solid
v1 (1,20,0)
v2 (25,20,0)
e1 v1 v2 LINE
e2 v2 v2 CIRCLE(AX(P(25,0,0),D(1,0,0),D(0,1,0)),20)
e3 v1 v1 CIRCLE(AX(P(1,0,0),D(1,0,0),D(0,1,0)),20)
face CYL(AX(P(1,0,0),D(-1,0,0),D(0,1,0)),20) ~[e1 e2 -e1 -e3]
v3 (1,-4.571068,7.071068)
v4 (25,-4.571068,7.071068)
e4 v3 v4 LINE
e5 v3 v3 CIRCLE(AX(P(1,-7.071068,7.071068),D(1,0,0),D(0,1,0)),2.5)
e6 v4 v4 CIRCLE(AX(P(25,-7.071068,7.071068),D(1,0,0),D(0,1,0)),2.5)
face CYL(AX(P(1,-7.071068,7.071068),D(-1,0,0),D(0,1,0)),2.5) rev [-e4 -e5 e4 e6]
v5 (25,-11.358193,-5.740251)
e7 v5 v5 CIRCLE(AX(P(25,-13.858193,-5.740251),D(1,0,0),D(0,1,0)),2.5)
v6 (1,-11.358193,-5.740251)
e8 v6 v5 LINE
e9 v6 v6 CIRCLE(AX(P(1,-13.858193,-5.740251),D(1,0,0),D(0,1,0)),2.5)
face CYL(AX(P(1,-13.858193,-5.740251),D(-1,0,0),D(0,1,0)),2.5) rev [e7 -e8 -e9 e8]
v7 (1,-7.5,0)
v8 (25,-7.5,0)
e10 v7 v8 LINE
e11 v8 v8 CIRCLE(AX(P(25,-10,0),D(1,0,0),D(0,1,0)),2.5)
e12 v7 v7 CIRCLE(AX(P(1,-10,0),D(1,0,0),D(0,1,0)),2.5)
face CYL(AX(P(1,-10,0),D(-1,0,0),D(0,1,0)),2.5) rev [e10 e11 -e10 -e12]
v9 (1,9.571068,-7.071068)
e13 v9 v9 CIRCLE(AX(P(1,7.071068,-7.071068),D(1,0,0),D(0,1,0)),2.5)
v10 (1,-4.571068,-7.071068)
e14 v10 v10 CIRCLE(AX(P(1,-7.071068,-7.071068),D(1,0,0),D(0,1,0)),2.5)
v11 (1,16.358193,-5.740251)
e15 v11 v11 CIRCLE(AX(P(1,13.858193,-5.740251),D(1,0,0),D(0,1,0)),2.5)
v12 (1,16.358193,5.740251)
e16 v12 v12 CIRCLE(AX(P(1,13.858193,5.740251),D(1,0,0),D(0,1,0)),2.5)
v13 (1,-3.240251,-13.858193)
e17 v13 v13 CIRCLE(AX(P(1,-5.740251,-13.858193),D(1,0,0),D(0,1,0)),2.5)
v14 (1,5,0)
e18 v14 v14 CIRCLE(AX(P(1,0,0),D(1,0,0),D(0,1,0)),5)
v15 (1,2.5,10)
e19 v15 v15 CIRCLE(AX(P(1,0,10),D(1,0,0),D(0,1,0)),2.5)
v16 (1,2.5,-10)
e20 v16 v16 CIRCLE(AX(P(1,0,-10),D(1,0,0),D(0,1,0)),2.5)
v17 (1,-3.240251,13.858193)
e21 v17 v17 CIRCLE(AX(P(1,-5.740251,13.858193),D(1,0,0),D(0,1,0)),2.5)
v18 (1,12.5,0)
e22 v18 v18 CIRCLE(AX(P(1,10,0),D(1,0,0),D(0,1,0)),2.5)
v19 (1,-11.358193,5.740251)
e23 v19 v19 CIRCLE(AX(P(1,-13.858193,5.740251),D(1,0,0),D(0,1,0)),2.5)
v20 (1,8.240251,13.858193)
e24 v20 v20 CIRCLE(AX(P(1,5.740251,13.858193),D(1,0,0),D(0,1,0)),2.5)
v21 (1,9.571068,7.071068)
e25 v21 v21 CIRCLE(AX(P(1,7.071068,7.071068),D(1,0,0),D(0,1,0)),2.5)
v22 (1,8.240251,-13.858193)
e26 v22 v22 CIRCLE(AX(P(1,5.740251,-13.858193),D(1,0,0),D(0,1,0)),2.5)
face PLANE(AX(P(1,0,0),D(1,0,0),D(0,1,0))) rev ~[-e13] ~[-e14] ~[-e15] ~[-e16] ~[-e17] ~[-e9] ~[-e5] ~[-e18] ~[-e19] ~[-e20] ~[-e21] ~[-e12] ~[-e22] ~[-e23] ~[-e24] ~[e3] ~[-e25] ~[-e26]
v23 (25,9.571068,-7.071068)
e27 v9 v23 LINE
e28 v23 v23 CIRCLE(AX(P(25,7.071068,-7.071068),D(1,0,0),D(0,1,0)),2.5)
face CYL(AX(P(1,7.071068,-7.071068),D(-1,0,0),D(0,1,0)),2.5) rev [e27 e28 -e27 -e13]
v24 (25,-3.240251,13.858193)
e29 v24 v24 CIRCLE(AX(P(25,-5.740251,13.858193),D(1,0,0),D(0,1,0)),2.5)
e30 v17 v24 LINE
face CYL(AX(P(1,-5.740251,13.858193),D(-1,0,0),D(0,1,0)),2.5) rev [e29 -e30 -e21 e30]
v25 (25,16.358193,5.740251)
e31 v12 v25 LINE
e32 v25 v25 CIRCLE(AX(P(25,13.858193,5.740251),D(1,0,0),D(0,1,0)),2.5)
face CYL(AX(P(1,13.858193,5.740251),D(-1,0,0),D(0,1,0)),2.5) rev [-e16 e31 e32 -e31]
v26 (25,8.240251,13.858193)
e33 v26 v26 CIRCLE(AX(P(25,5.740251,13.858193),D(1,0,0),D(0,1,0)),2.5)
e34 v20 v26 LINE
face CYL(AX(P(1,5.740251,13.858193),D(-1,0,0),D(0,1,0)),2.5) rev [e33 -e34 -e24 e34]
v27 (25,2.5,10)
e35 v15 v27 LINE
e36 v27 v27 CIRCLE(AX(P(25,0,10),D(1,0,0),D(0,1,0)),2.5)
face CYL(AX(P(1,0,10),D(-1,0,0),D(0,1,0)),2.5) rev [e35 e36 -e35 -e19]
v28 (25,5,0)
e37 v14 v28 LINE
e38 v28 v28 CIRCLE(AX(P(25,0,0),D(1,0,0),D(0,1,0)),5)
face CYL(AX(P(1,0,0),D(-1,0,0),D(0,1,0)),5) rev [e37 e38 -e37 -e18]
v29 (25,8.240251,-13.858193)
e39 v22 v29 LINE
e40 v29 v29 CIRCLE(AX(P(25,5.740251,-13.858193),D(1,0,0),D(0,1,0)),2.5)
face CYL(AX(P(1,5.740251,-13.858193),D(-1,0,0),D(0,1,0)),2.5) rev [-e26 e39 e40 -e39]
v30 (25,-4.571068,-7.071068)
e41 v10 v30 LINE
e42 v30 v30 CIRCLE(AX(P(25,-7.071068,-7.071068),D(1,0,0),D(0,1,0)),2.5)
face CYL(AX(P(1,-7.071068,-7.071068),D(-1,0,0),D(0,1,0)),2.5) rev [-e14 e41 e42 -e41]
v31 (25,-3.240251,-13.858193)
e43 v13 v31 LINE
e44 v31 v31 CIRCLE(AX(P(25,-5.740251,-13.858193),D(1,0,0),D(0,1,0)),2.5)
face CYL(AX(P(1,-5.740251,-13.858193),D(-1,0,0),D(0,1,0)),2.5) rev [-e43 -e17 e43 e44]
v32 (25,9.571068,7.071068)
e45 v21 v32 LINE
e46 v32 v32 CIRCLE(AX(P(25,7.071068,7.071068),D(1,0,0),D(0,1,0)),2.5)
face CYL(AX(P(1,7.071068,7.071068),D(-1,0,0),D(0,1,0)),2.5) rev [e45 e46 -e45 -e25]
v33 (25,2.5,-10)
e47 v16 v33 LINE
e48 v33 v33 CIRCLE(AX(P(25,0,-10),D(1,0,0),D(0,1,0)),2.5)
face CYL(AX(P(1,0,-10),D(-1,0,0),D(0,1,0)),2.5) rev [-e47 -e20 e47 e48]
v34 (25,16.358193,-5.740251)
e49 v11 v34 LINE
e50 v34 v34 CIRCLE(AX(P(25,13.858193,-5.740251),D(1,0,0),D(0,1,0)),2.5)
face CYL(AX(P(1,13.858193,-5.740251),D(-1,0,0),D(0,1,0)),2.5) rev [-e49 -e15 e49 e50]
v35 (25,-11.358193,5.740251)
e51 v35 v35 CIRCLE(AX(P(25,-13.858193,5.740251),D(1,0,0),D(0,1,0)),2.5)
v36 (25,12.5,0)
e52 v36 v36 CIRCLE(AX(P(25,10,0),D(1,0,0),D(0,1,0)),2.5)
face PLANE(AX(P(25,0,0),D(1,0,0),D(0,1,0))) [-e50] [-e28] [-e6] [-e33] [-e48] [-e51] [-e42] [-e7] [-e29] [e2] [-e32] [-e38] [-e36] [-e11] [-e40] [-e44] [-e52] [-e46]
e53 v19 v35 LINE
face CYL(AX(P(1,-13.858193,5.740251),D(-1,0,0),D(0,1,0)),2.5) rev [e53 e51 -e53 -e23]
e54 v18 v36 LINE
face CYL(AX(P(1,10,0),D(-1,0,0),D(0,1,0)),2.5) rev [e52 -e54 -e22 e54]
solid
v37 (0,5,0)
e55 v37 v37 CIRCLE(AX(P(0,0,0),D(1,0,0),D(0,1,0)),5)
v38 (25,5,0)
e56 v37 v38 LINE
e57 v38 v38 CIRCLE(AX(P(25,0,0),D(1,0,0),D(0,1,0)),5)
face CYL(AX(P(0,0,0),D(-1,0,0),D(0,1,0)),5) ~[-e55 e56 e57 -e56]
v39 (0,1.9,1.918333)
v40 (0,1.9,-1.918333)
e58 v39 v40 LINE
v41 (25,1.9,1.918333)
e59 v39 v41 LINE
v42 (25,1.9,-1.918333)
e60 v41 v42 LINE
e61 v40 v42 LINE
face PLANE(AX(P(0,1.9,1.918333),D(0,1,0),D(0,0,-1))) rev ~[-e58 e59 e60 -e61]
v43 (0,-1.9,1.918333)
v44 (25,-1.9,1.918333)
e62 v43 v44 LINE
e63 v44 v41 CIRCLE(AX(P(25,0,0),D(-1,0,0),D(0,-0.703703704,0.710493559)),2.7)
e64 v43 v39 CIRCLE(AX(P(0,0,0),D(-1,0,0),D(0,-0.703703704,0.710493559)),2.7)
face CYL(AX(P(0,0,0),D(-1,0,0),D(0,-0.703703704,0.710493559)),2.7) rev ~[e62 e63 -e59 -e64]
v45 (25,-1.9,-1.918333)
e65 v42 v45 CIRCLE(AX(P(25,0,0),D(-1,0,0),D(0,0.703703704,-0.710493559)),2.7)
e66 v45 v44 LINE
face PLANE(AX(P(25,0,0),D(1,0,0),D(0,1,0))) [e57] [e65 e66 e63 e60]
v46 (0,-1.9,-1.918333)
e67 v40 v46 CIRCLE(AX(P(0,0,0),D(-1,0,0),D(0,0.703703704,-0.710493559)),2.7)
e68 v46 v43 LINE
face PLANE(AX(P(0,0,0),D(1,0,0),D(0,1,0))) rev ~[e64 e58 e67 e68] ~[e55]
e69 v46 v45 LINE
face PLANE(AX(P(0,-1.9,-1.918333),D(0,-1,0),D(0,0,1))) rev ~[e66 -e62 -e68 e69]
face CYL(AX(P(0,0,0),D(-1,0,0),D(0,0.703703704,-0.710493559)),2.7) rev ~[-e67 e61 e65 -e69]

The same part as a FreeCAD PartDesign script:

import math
import FreeCAD as App
import Part
import Sketcher

V = App.Vector
Q = App.Units.Quantity

doc = App.newDocument("Part")
params = doc.addObject("Spreadsheet::Sheet", "Params")
for row, (alias, value) in enumerate([
    ("sketch1_diameter", "10 mm"),
    ("sketch1_radius", "2.7 mm"),
    ("pad1_length", "25 mm"),
    ("sketch2_diameter", "40 mm"),
    ("sketch2_diameter2", "5 mm"),
    ("sketch2_diameter3", "10 mm"),
    ("pad2_length", "24 mm"),
], start=1):
    params.set(f"A{row}", alias)
    params.set(f"B{row}", "=" + value)
    params.setAlias(f"B{row}", alias)

body = doc.addObject("PartDesign::Body", "Body")

# Sketch on YZ plane
sketch1 = body.newObject("Sketcher::SketchObject", "Sketch")
sketch1.AttachmentSupport = (doc.getObject("YZ_Plane"), [""])
sketch1.MapMode = "FlatFace"
sketch1.addGeometry([
    Part.Circle(V(0, 0, 0), V(0, 0, 1), 5),  # 0
    Part.LineSegment(V(1.9, 1.9, 0), V(1.9, -1.9, 0)),  # 1
    Part.ArcOfCircle(Part.Circle(V(0, 0, 0), V(0, 0, 1), 2.7), math.radians(-135), math.radians(-45)),  # 2
    Part.LineSegment(V(-1.9, -1.9, 0), V(-1.9, 1.9, 0)),  # 3
    Part.ArcOfCircle(Part.Circle(V(0, 0, 0), V(0, 0, 1), 2.7), math.radians(45), math.radians(135)),  # 4
], False)
sketch1.addConstraint([
    Sketcher.Constraint("Coincident", 1, 2, 2, 2),
    Sketcher.Constraint("Coincident", 2, 1, 3, 1),
    Sketcher.Constraint("Coincident", 3, 2, 4, 2),
    Sketcher.Constraint("Coincident", 4, 1, 1, 1),
    Sketcher.Constraint("Vertical", 1),
    Sketcher.Constraint("Vertical", 3),
    Sketcher.Constraint("Coincident", 0, 3, -1, 1),
    Sketcher.Constraint("Coincident", 2, 3, -1, 1),
    Sketcher.Constraint("Coincident", 4, 3, -1, 1),
    Sketcher.Constraint("Equal", 2, 4),
    Sketcher.Constraint("Horizontal", 1, 2, 2, 1),
    Sketcher.Constraint("Diameter", 0, Q("10 mm")),
    Sketcher.Constraint("Radius", 2, Q("2.7 mm")),
    Sketcher.Constraint("DistanceX", -1, 1, 1, 2, Q("1.9 mm")),
])
sketch1.setExpression("Constraints[11]", "Params.sketch1_diameter")
sketch1.setExpression("Constraints[12]", "Params.sketch1_radius")
pad1 = body.newObject("PartDesign::Pad", "Pad")
pad1.Profile = sketch1
pad1.setExpression("Length", "Params.pad1_length")
body2 = doc.addObject("PartDesign::Body", "Body001")

# Sketch on YZ plane
sketch2 = body2.newObject("Sketcher::SketchObject", "Sketch001")
sketch2.AttachmentSupport = (doc.getObject("YZ_Plane001"), [""])
sketch2.MapMode = "FlatFace"
sketch2.AttachmentOffset = App.Placement(V(0, 0, 1), App.Rotation())
sketch2.addGeometry([
    Part.Circle(V(0, 0, 0), V(0, 0, 1), 20),  # 0
    Part.Circle(V(-5.7, -13.9, 0), V(0, 0, 1), 2.5),  # 1
    Part.Circle(V(-13.9, -5.7, 0), V(0, 0, 1), 2.5),  # 2
    Part.Circle(V(-7.1, -7.1, 0), V(0, 0, 1), 2.5),  # 3
    Part.Circle(V(5.7, -13.9, 0), V(0, 0, 1), 2.5),  # 4
    Part.Circle(V(0, -10, 0), V(0, 0, 1), 2.5),  # 5
    Part.Circle(V(7.1, -7.1, 0), V(0, 0, 1), 2.5),  # 6
    Part.Circle(V(13.9, -5.7, 0), V(0, 0, 1), 2.5),  # 7
    Part.Circle(V(-10, 0, 0), V(0, 0, 1), 2.5),  # 8
    Part.Circle(V(-13.9, 5.7, 0), V(0, 0, 1), 2.5),  # 9
    Part.Circle(V(-7.1, 7.1, 0), V(0, 0, 1), 2.5),  # 10
    Part.Circle(V(-5.7, 13.9, 0), V(0, 0, 1), 2.5),  # 11
    Part.Circle(V(0, 0, 0), V(0, 0, 1), 5),  # 12
    Part.Circle(V(7.1, 7.1, 0), V(0, 0, 1), 2.5),  # 13
    Part.Circle(V(10, 0, 0), V(0, 0, 1), 2.5),  # 14
    Part.Circle(V(13.9, 5.7, 0), V(0, 0, 1), 2.5),  # 15
    Part.Circle(V(0, 10, 0), V(0, 0, 1), 2.5),  # 16
    Part.Circle(V(5.7, 13.9, 0), V(0, 0, 1), 2.5),  # 17
], False)
sketch2.addConstraint([
    Sketcher.Constraint("Coincident", 0, 3, -1, 1),
    Sketcher.Constraint("Coincident", 12, 3, -1, 1),
    Sketcher.Constraint("Equal", 1, 2),
    Sketcher.Constraint("Equal", 2, 3),
    Sketcher.Constraint("Equal", 3, 4),
    Sketcher.Constraint("Equal", 4, 5),
    Sketcher.Constraint("Equal", 5, 6),
    Sketcher.Constraint("Equal", 6, 7),
    Sketcher.Constraint("Equal", 7, 8),
    Sketcher.Constraint("Equal", 8, 9),
    Sketcher.Constraint("Equal", 9, 10),
    Sketcher.Constraint("Equal", 10, 11),
    Sketcher.Constraint("Equal", 11, 13),
    Sketcher.Constraint("Equal", 13, 14),
    Sketcher.Constraint("Equal", 14, 15),
    Sketcher.Constraint("Equal", 15, 16),
    Sketcher.Constraint("Equal", 16, 17),
    Sketcher.Constraint("Symmetric", 7, 3, 9, 3, -1, 1),
    Sketcher.Constraint("Symmetric", 6, 3, 10, 3, -1, 1),
    Sketcher.Constraint("Symmetric", 4, 3, 11, 3, -1, 1),
    Sketcher.Constraint("Symmetric", 3, 3, 13, 3, -1, 1),
    Sketcher.Constraint("Symmetric", 8, 3, 14, 3, -1, 1),
    Sketcher.Constraint("Symmetric", 2, 3, 15, 3, -1, 1),
    Sketcher.Constraint("Symmetric", 5, 3, 16, 3, -1, 1),
    Sketcher.Constraint("Symmetric", 1, 3, 17, 3, -1, 1),
    Sketcher.Constraint("Symmetric", 1, 3, 4, 3, -2),
    Sketcher.Constraint("Symmetric", 3, 3, 6, 3, -2),
    Sketcher.Constraint("Symmetric", 2, 3, 7, 3, -2),
    Sketcher.Constraint("PointOnObject", 5, 3, -2),
    Sketcher.Constraint("PointOnObject", 8, 3, -1),
    Sketcher.Constraint("Diameter", 0, Q("40 mm")),
    Sketcher.Constraint("Diameter", 1, Q("5 mm")),
    Sketcher.Constraint("Diameter", 12, Q("10 mm")),
    Sketcher.Constraint("DistanceY", 5, 3, -1, 1, Q("10 mm")),
    Sketcher.Constraint("DistanceX", 8, 3, -1, 1, Q("10 mm")),
    Sketcher.Constraint("DistanceX", 1, 3, -1, 1, Q("5.740251 mm")),
    Sketcher.Constraint("DistanceY", 2, 3, -1, 1, Q("5.740251 mm")),
    Sketcher.Constraint("DistanceX", 2, 3, 1, 3, Q("8.117942 mm")),
    Sketcher.Constraint("DistanceY", 1, 3, 2, 3, Q("8.117942 mm")),
    Sketcher.Constraint("DistanceX", 3, 3, 4, 3, Q("12.811319 mm")),
    Sketcher.Constraint("DistanceY", 3, 3, 9, 3, Q("12.811319 mm")),
])
sketch2.setExpression("Constraints[30]", "Params.sketch2_diameter")
sketch2.setExpression("Constraints[31]", "Params.sketch2_diameter2")
sketch2.setExpression("Constraints[32]", "Params.sketch2_diameter3")
pad2 = body2.newObject("PartDesign::Pad", "Pad001")
pad2.Profile = sketch2
pad2.setExpression("Length", "Params.pad2_length")

doc.recompute()
